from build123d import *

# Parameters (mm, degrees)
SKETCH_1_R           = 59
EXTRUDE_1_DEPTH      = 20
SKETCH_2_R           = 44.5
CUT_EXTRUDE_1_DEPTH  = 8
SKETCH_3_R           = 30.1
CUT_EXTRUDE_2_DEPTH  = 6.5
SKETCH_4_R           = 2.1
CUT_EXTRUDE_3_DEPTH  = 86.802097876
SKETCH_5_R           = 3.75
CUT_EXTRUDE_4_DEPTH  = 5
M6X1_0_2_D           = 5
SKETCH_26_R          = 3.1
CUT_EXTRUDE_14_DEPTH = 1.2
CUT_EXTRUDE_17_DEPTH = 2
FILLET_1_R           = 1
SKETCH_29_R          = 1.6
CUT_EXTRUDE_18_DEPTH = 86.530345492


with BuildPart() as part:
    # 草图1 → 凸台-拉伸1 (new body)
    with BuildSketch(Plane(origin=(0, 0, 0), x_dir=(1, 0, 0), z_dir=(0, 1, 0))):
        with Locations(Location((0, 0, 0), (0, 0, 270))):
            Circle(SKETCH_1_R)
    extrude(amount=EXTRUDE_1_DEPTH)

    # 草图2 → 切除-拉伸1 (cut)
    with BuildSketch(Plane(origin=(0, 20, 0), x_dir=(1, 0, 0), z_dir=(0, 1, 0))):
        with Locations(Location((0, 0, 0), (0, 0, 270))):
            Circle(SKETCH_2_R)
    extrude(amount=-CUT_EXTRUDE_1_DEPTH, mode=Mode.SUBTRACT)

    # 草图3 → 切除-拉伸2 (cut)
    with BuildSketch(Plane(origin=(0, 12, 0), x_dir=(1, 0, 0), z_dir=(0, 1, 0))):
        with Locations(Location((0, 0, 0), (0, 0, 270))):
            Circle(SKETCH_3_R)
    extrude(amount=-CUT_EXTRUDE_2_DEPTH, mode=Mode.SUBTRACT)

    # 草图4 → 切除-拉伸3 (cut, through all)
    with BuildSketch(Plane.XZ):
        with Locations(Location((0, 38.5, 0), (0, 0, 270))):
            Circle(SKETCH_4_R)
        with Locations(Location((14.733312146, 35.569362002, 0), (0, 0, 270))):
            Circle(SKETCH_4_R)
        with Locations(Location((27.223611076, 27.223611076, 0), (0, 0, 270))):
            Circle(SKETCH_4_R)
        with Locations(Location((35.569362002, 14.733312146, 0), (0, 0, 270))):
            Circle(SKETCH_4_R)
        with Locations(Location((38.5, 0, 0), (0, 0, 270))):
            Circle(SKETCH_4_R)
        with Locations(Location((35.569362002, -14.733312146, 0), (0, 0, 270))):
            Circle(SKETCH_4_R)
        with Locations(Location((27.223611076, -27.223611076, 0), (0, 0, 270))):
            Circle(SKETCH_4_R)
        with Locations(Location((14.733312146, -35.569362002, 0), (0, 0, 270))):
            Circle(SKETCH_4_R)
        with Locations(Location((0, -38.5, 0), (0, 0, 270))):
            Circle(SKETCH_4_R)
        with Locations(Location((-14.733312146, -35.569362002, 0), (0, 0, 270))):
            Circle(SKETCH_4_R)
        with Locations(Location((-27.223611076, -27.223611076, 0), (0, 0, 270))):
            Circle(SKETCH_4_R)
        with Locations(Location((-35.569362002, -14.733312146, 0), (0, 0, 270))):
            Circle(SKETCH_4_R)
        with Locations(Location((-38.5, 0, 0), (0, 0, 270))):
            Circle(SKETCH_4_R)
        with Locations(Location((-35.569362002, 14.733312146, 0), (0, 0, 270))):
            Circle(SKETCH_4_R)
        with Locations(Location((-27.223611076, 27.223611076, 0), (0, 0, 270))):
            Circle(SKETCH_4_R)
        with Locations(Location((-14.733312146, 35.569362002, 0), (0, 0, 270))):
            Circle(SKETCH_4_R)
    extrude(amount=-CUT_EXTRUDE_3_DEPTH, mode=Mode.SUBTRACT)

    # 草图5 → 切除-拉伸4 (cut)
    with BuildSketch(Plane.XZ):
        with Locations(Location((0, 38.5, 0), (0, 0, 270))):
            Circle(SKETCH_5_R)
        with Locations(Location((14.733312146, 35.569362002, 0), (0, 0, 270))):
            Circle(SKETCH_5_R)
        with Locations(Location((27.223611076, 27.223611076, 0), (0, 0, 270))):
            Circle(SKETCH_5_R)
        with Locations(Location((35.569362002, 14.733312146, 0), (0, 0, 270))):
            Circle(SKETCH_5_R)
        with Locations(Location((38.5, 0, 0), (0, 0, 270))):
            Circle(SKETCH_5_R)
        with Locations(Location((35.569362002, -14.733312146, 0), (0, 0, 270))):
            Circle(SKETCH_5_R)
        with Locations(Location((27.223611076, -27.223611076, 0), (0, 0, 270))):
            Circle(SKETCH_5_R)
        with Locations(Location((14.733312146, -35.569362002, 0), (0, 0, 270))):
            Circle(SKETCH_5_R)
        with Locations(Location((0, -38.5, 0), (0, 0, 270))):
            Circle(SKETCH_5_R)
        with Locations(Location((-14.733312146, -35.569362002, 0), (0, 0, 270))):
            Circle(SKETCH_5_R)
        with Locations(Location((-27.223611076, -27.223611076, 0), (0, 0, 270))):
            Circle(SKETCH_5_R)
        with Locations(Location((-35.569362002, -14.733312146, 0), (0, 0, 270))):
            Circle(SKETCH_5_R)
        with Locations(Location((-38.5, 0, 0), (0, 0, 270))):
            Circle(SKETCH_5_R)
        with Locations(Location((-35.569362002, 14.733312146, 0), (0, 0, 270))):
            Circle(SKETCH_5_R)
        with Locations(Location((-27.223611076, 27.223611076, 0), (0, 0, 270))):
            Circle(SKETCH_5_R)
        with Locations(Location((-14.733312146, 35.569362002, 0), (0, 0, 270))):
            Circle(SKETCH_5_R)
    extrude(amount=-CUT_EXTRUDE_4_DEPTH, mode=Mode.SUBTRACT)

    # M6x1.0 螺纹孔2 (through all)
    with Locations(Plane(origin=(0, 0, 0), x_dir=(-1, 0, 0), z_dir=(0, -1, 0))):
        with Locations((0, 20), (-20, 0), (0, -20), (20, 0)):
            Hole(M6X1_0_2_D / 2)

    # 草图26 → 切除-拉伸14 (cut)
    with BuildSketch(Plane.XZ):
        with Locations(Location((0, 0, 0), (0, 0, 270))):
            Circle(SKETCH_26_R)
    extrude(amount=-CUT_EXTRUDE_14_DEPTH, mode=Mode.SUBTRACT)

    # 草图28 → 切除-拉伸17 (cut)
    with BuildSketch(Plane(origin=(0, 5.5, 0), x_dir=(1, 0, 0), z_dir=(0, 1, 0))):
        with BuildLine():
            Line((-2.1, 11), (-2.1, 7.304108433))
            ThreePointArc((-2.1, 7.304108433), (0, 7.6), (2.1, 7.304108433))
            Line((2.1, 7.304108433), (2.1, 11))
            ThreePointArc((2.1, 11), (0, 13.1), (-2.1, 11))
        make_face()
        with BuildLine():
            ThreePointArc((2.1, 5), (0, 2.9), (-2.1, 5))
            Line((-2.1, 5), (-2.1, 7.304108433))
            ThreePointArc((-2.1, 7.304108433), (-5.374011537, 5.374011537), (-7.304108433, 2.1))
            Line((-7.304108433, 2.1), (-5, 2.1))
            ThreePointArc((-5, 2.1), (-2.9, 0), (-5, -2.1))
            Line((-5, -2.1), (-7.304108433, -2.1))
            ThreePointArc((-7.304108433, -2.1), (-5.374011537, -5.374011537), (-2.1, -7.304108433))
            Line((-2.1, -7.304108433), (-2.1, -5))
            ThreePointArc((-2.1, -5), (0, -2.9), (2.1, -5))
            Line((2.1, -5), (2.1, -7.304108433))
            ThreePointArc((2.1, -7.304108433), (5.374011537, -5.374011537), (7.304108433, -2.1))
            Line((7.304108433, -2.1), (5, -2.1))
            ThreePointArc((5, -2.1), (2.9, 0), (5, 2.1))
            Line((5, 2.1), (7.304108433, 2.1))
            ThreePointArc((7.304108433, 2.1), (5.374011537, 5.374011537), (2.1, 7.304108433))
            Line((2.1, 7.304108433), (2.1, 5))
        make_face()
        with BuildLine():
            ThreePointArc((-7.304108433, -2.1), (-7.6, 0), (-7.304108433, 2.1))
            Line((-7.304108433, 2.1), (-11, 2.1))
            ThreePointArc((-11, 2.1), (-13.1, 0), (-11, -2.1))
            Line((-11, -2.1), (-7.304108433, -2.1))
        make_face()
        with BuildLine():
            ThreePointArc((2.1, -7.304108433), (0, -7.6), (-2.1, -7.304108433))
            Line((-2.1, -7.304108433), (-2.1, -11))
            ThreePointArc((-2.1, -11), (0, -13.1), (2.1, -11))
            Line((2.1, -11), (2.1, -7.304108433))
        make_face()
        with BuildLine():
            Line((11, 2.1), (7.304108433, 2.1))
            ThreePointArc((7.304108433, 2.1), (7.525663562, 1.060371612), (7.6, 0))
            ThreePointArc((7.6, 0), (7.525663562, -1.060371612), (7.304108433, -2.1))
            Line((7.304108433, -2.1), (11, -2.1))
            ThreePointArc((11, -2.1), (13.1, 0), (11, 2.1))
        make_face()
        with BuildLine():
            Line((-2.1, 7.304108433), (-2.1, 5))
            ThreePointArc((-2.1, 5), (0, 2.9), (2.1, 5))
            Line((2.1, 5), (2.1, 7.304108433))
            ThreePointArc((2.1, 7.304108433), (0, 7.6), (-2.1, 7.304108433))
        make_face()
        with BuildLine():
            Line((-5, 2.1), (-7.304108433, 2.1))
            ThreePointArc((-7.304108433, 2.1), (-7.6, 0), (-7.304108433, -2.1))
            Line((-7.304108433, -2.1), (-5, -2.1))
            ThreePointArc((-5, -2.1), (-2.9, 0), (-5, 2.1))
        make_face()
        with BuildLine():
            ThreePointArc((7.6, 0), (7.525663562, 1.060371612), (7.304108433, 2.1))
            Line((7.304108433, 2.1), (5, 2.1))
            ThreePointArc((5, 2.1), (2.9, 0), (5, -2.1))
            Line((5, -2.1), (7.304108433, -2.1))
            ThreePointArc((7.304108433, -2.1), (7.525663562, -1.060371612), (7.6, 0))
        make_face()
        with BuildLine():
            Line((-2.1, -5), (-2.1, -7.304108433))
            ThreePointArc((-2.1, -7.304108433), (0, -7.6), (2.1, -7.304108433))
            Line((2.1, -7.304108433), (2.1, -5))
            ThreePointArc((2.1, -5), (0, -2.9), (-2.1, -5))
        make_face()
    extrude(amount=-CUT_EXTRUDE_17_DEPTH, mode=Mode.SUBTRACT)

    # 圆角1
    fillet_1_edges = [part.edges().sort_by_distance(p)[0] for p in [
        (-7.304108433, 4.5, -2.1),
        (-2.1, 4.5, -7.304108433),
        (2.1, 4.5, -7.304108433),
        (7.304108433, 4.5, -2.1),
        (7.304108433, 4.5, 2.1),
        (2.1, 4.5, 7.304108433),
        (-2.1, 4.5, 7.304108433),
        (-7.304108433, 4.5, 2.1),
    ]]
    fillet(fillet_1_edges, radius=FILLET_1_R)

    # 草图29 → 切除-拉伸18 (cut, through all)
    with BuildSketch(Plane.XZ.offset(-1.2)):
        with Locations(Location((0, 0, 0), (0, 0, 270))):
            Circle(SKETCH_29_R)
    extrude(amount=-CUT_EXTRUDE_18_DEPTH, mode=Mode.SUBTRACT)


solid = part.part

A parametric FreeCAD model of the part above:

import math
import FreeCAD as App
import Part
import Sketcher

V = App.Vector


def edges_at(feature, points):
    """Names of the edges that pass closest to the given points."""
    edges = feature.Shape.Edges
    near = lambda p: min(range(len(edges)), key=lambda i: edges[i].distToShape(Part.Vertex(*p))[0])
    return sorted({f"Edge{near(p) + 1}" for p in points})

doc = App.newDocument("Part")
params = doc.addObject("Spreadsheet::Sheet", "Params")
for row, (alias, value) in enumerate([
    ("sketch1_diameter", "118 mm"),
    ("pad1_length", "20 mm"),
    ("sketch2_diameter", "89 mm"),
    ("pocket1_length", "8 mm"),
    ("sketch3_diameter", "60.2 mm"),
    ("pocket2_length", "6.5 mm"),
    ("sketch4_diameter", "4.2 mm"),
    ("sketch5_diameter", "7.5 mm"),
    ("pocket4_length", "5 mm"),
    ("sketch6_diameter", "5 mm"),
    ("hole_diameter", "5 mm"),
    ("sketch7_diameter", "6.2 mm"),
    ("pocket5_length", "1.2 mm"),
    ("sketch8_radius", "7.6 mm"),
    ("sketch8_radius2", "2.1 mm"),
    ("pocket6_length", "2 mm"),
    ("fillet_radius", "1 mm"),
    ("sketch9_diameter", "3.2 mm"),
], start=1):
    params.set(f"A{row}", alias)
    params.set(f"B{row}", "=" + value)
    params.setAlias(f"B{row}", alias)

body = doc.addObject("PartDesign::Body", "Body")

sketch1 = body.newObject("Sketcher::SketchObject", "Sketch")
sketch1.AttachmentSupport = (doc.getObject("XZ_Plane"), [""])
sketch1.MapMode = "FlatFace"
sketch1.addGeometry(Part.Circle(V(0, 0, 0), V(0, 0, 1), 59), False)
sketch1.addConstraint(Sketcher.Constraint("Coincident", 0, 3, -1, 1))
sketch1.addConstraint(Sketcher.Constraint("Diameter", 0, 118.0))
sketch1.setExpression("Constraints[1]", "Params.sketch1_diameter")
pad1 = body.newObject("PartDesign::Pad", "Pad")
pad1.Profile = sketch1
pad1.setExpression("Length", "Params.pad1_length")
pad1.Reversed = True

sketch2 = body.newObject("Sketcher::SketchObject", "Sketch001")
sketch2.AttachmentSupport = (doc.getObject("XZ_Plane"), [""])
sketch2.MapMode = "FlatFace"
sketch2.AttachmentOffset = App.Placement(V(0, 0, -20), App.Rotation())
sketch2.addGeometry(Part.Circle(V(0, 0, 0), V(0, 0, 1), 44.5), False)
sketch2.addConstraint(Sketcher.Constraint("Coincident", 0, 3, -1, 1))
sketch2.addConstraint(Sketcher.Constraint("Diameter", 0, 89.0))
sketch2.setExpression("Constraints[1]", "Params.sketch2_diameter")
pocket1 = body.newObject("PartDesign::Pocket", "Pocket")
pocket1.Profile = sketch2
pocket1.setExpression("Length", "Params.pocket1_length")
pocket1.Reversed = True

sketch3 = body.newObject("Sketcher::SketchObject", "Sketch002")
sketch3.AttachmentSupport = (doc.getObject("XZ_Plane"), [""])
sketch3.MapMode = "FlatFace"
sketch3.AttachmentOffset = App.Placement(V(0, 0, -12), App.Rotation())
sketch3.addGeometry(Part.Circle(V(0, 0, 0), V(0, 0, 1), 30.1), False)
sketch3.addConstraint(Sketcher.Constraint("Coincident", 0, 3, -1, 1))
sketch3.addConstraint(Sketcher.Constraint("Diameter", 0, 60.2))
sketch3.setExpression("Constraints[1]", "Params.sketch3_diameter")
pocket2 = body.newObject("PartDesign::Pocket", "Pocket001")
pocket2.Profile = sketch3
pocket2.setExpression("Length", "Params.pocket2_length")
pocket2.Reversed = True

sketch4 = body.newObject("Sketcher::SketchObject", "Sketch003")
sketch4.AttachmentSupport = (doc.getObject("XZ_Plane"), [""])
sketch4.MapMode = "FlatFace"
sketch4.addGeometry(Part.Circle(V(0, 38.5, 0), V(0, 0, 1), 2.1), False)
sketch4.addGeometry(Part.Circle(V(14.733312, 35.569362, 0), V(0, 0, 1), 2.1), False)
sketch4.addGeometry(Part.Circle(V(27.223611, 27.223611, 0), V(0, 0, 1), 2.1), False)
sketch4.addGeometry(Part.Circle(V(35.569362, 14.733312, 0), V(0, 0, 1), 2.1), False)
sketch4.addGeometry(Part.Circle(V(38.5, 0, 0), V(0, 0, 1), 2.1), False)
sketch4.addGeometry(Part.Circle(V(35.569362, -14.733312, 0), V(0, 0, 1), 2.1), False)
sketch4.addGeometry(Part.Circle(V(27.223611, -27.223611, 0), V(0, 0, 1), 2.1), False)
sketch4.addGeometry(Part.Circle(V(14.733312, -35.569362, 0), V(0, 0, 1), 2.1), False)
sketch4.addGeometry(Part.Circle(V(0, -38.5, 0), V(0, 0, 1), 2.1), False)
sketch4.addGeometry(Part.Circle(V(-14.733312, -35.569362, 0), V(0, 0, 1), 2.1), False)
sketch4.addGeometry(Part.Circle(V(-27.223611, -27.223611, 0), V(0, 0, 1), 2.1), False)
sketch4.addGeometry(Part.Circle(V(-35.569362, -14.733312, 0), V(0, 0, 1), 2.1), False)
sketch4.addGeometry(Part.Circle(V(-38.5, 0, 0), V(0, 0, 1), 2.1), False)
sketch4.addGeometry(Part.Circle(V(-35.569362, 14.733312, 0), V(0, 0, 1), 2.1), False)
sketch4.addGeometry(Part.Circle(V(-27.223611, 27.223611, 0), V(0, 0, 1), 2.1), False)
sketch4.addGeometry(Part.Circle(V(-14.733312, 35.569362, 0), V(0, 0, 1), 2.1), False)
sketch4.addConstraint(Sketcher.Constraint("Equal", 0, 1))
sketch4.addConstraint(Sketcher.Constraint("Equal", 1, 2))
sketch4.addConstraint(Sketcher.Constraint("Equal", 2, 3))
sketch4.addConstraint(Sketcher.Constraint("Equal", 3, 4))
sketch4.addConstraint(Sketcher.Constraint("Equal", 4, 5))
sketch4.addConstraint(Sketcher.Constraint("Equal", 5, 6))
sketch4.addConstraint(Sketcher.Constraint("Equal", 6, 7))
sketch4.addConstraint(Sketcher.Constraint("Equal", 7, 8))
sketch4.addConstraint(Sketcher.Constraint("Equal", 8, 9))
sketch4.addConstraint(Sketcher.Constraint("Equal", 9, 10))
sketch4.addConstraint(Sketcher.Constraint("Equal", 10, 11))
sketch4.addConstraint(Sketcher.Constraint("Equal", 11, 12))
sketch4.addConstraint(Sketcher.Constraint("Equal", 12, 13))
sketch4.addConstraint(Sketcher.Constraint("Equal", 13, 14))
sketch4.addConstraint(Sketcher.Constraint("Equal", 14, 15))
sketch4.addConstraint(Sketcher.Constraint("Symmetric", 0, 3, 8, 3, -1, 1))
sketch4.addConstraint(Sketcher.Constraint("Symmetric", 1, 3, 9, 3, -1, 1))
sketch4.addConstraint(Sketcher.Constraint("Symmetric", 2, 3, 10, 3, -1, 1))
sketch4.addConstraint(Sketcher.Constraint("Symmetric", 3, 3, 11, 3, -1, 1))
sketch4.addConstraint(Sketcher.Constraint("Symmetric", 4, 3, 12, 3, -1, 1))
sketch4.addConstraint(Sketcher.Constraint("Symmetric", 5, 3, 13, 3, -1, 1))
sketch4.addConstraint(Sketcher.Constraint("Symmetric", 6, 3, 14, 3, -1, 1))
sketch4.addConstraint(Sketcher.Constraint("Symmetric", 7, 3, 15, 3, -1, 1))
sketch4.addConstraint(Sketcher.Constraint("Symmetric", 7, 3, 9, 3, -2))
sketch4.addConstraint(Sketcher.Constraint("Symmetric", 6, 3, 10, 3, -2))
sketch4.addConstraint(Sketcher.Constraint("Symmetric", 5, 3, 11, 3, -2))
sketch4.addConstraint(Sketcher.Constraint("PointOnObject", 0, 3, -2))
sketch4.addConstraint(Sketcher.Constraint("PointOnObject", 4, 3, -1))
sketch4.addConstraint(Sketcher.Constraint("Diameter", 0, 4.2))
sketch4.addConstraint(Sketcher.Constraint("DistanceY", -1, 1, 0, 3, 38.5))
sketch4.addConstraint(Sketcher.Constraint("DistanceX", -1, 1, 4, 3, 38.5))
sketch4.addConstraint(Sketcher.Constraint("DistanceX", 1, 3, 2, 3, 12.490299))
sketch4.addConstraint(Sketcher.Constraint("DistanceY", 3, 3, 2, 3, 12.490299))
sketch4.addConstraint(Sketcher.Constraint("DistanceX", -1, 1, 2, 3, 27.223611))
sketch4.addConstraint(Sketcher.Constraint("DistanceY", -1, 1, 2, 3, 27.223611))
sketch4.addConstraint(Sketcher.Constraint("DistanceY", 2, 3, 1, 3, 8.345751))
sketch4.addConstraint(Sketcher.Constraint("DistanceX", 2, 3, 3, 3, 8.345751))
sketch4.setExpression("Constraints[28]", "Params.sketch4_diameter")
pocket3 = body.newObject("PartDesign::Pocket", "Pocket002")
pocket3.Profile = sketch4
pocket3.Type = "ThroughAll"

sketch5 = body.newObject("Sketcher::SketchObject", "Sketch004")
sketch5.AttachmentSupport = (doc.getObject("XZ_Plane"), [""])
sketch5.MapMode = "FlatFace"
sketch5.addGeometry(Part.Circle(V(0, 38.5, 0), V(0, 0, 1), 3.75), False)
sketch5.addGeometry(Part.Circle(V(14.733312, 35.569362, 0), V(0, 0, 1), 3.75), False)
sketch5.addGeometry(Part.Circle(V(27.223611, 27.223611, 0), V(0, 0, 1), 3.75), False)
sketch5.addGeometry(Part.Circle(V(35.569362, 14.733312, 0), V(0, 0, 1), 3.75), False)
sketch5.addGeometry(Part.Circle(V(38.5, 0, 0), V(0, 0, 1), 3.75), False)
sketch5.addGeometry(Part.Circle(V(35.569362, -14.733312, 0), V(0, 0, 1), 3.75), False)
sketch5.addGeometry(Part.Circle(V(27.223611, -27.223611, 0), V(0, 0, 1), 3.75), False)
sketch5.addGeometry(Part.Circle(V(14.733312, -35.569362, 0), V(0, 0, 1), 3.75), False)
sketch5.addGeometry(Part.Circle(V(0, -38.5, 0), V(0, 0, 1), 3.75), False)
sketch5.addGeometry(Part.Circle(V(-14.733312, -35.569362, 0), V(0, 0, 1), 3.75), False)
sketch5.addGeometry(Part.Circle(V(-27.223611, -27.223611, 0), V(0, 0, 1), 3.75), False)
sketch5.addGeometry(Part.Circle(V(-35.569362, -14.733312, 0), V(0, 0, 1), 3.75), False)
sketch5.addGeometry(Part.Circle(V(-38.5, 0, 0), V(0, 0, 1), 3.75), False)
sketch5.addGeometry(Part.Circle(V(-35.569362, 14.733312, 0), V(0, 0, 1), 3.75), False)
sketch5.addGeometry(Part.Circle(V(-27.223611, 27.223611, 0), V(0, 0, 1), 3.75), False)
sketch5.addGeometry(Part.Circle(V(-14.733312, 35.569362, 0), V(0, 0, 1), 3.75), False)
sketch5.addConstraint(Sketcher.Constraint("Equal", 0, 1))
sketch5.addConstraint(Sketcher.Constraint("Equal", 1, 2))
sketch5.addConstraint(Sketcher.Constraint("Equal", 2, 3))
sketch5.addConstraint(Sketcher.Constraint("Equal", 3, 4))
sketch5.addConstraint(Sketcher.Constraint("Equal", 4, 5))
sketch5.addConstraint(Sketcher.Constraint("Equal", 5, 6))
sketch5.addConstraint(Sketcher.Constraint("Equal", 6, 7))
sketch5.addConstraint(Sketcher.Constraint("Equal", 7, 8))
sketch5.addConstraint(Sketcher.Constraint("Equal", 8, 9))
sketch5.addConstraint(Sketcher.Constraint("Equal", 9, 10))
sketch5.addConstraint(Sketcher.Constraint("Equal", 10, 11))
sketch5.addConstraint(Sketcher.Constraint("Equal", 11, 12))
sketch5.addConstraint(Sketcher.Constraint("Equal", 12, 13))
sketch5.addConstraint(Sketcher.Constraint("Equal", 13, 14))
sketch5.addConstraint(Sketcher.Constraint("Equal", 14, 15))
sketch5.addConstraint(Sketcher.Constraint("Symmetric", 0, 3, 8, 3, -1, 1))
sketch5.addConstraint(Sketcher.Constraint("Symmetric", 1, 3, 9, 3, -1, 1))
sketch5.addConstraint(Sketcher.Constraint("Symmetric", 2, 3, 10, 3, -1, 1))
sketch5.addConstraint(Sketcher.Constraint("Symmetric", 3, 3, 11, 3, -1, 1))
sketch5.addConstraint(Sketcher.Constraint("Symmetric", 4, 3, 12, 3, -1, 1))
sketch5.addConstraint(Sketcher.Constraint("Symmetric", 5, 3, 13, 3, -1, 1))
sketch5.addConstraint(Sketcher.Constraint("Symmetric", 6, 3, 14, 3, -1, 1))
sketch5.addConstraint(Sketcher.Constraint("Symmetric", 7, 3, 15, 3, -1, 1))
sketch5.addConstraint(Sketcher.Constraint("Symmetric", 7, 3, 9, 3, -2))
sketch5.addConstraint(Sketcher.Constraint("Symmetric", 6, 3, 10, 3, -2))
sketch5.addConstraint(Sketcher.Constraint("Symmetric", 5, 3, 11, 3, -2))
sketch5.addConstraint(Sketcher.Constraint("PointOnObject", 0, 3, -2))
sketch5.addConstraint(Sketcher.Constraint("PointOnObject", 4, 3, -1))
sketch5.addConstraint(Sketcher.Constraint("Diameter", 0, 7.5))
sketch5.addConstraint(Sketcher.Constraint("DistanceY", -1, 1, 0, 3, 38.5))
sketch5.addConstraint(Sketcher.Constraint("DistanceX", -1, 1, 4, 3, 38.5))
sketch5.addConstraint(Sketcher.Constraint("DistanceX", 1, 3, 2, 3, 12.490299))
sketch5.addConstraint(Sketcher.Constraint("DistanceY", 3, 3, 2, 3, 12.490299))
sketch5.addConstraint(Sketcher.Constraint("DistanceX", -1, 1, 2, 3, 27.223611))
sketch5.addConstraint(Sketcher.Constraint("DistanceY", -1, 1, 2, 3, 27.223611))
sketch5.addConstraint(Sketcher.Constraint("DistanceY", 2, 3, 1, 3, 8.345751))
sketch5.addConstraint(Sketcher.Constraint("DistanceX", 2, 3, 3, 3, 8.345751))
sketch5.setExpression("Constraints[28]", "Params.sketch5_diameter")
pocket4 = body.newObject("PartDesign::Pocket", "Pocket003")
pocket4.Profile = sketch5
pocket4.setExpression("Length", "Params.pocket4_length")

sketch6 = body.newObject("Sketcher::SketchObject", "Sketch005")
sketch6.AttachmentSupport = (doc.getObject("XZ_Plane"), [""])
sketch6.MapMode = "FlatFace"
sketch6.addGeometry(Part.Circle(V(0, -20, 0), V(0, 0, 1), 2.5), False)
sketch6.addGeometry(Part.Circle(V(20, 0, 0), V(0, 0, 1), 2.5), False)
sketch6.addGeometry(Part.Circle(V(0, 20, 0), V(0, 0, 1), 2.5), False)
sketch6.addGeometry(Part.Circle(V(-20, 0, 0), V(0, 0, 1), 2.5), False)
sketch6.addConstraint(Sketcher.Constraint("Equal", 0, 1))
sketch6.addConstraint(Sketcher.Constraint("Equal", 1, 2))
sketch6.addConstraint(Sketcher.Constraint("Equal", 2, 3))
sketch6.addConstraint(Sketcher.Constraint("Symmetric", 0, 3, 2, 3, -1, 1))
sketch6.addConstraint(Sketcher.Constraint("Symmetric", 1, 3, 3, 3, -1, 1))
sketch6.addConstraint(Sketcher.Constraint("PointOnObject", 0, 3, -2))
sketch6.addConstraint(Sketcher.Constraint("PointOnObject", 1, 3, -1))
sketch6.addConstraint(Sketcher.Constraint("Diameter", 0, 5.0))
sketch6.addConstraint(Sketcher.Constraint("DistanceY", 0, 3, -1, 1, 20.0))
sketch6.addConstraint(Sketcher.Constraint("DistanceX", -1, 1, 1, 3, 20.0))
sketch6.setExpression("Constraints[7]", "Params.sketch6_diameter")
doc.recompute()
hole = body.newObject("PartDesign::Hole", "Hole")
hole.Profile = sketch6
hole.ThreadType = "None"
hole.setExpression("Diameter", "Params.hole_diameter")
hole.DepthType = "ThroughAll"

sketch7 = body.newObject("Sketcher::SketchObject", "Sketch006")
sketch7.AttachmentSupport = (doc.getObject("XZ_Plane"), [""])
sketch7.MapMode = "FlatFace"
sketch7.addGeometry(Part.Circle(V(0, 0, 0), V(0, 0, 1), 3.1), False)
sketch7.addConstraint(Sketcher.Constraint("Coincident", 0, 3, -1, 1))
sketch7.addConstraint(Sketcher.Constraint("Diameter", 0, 6.2))
sketch7.setExpression("Constraints[1]", "Params.sketch7_diameter")
pocket5 = body.newObject("PartDesign::Pocket", "Pocket004")
pocket5.Profile = sketch7
pocket5.setExpression("Length", "Params.pocket5_length")

sketch8 = body.newObject("Sketcher::SketchObject", "Sketch007")
sketch8.AttachmentSupport = (doc.getObject("XZ_Plane"), [""])
sketch8.MapMode = "FlatFace"
sketch8.AttachmentOffset = App.Placement(V(0, 0, -5.5), App.Rotation())
sketch8.addGeometry(Part.LineSegment(V(-2.1, -11, 0), V(-2.1, -7.304108, 0)), False)
sketch8.addGeometry(Part.ArcOfCircle(Part.Circle(V(0, 0, 0), V(0, 0, 1), 7.6), math.radians(-163.959558), math.radians(-106.040442)), False)
sketch8.addGeometry(Part.LineSegment(V(-7.304108, -2.1, 0), V(-11, -2.1, 0)), False)
sketch8.addGeometry(Part.ArcOfCircle(Part.Circle(V(-11, 0, 0), V(0, 0, 1), 2.1), math.radians(90), math.radians(270)), False)
sketch8.addGeometry(Part.LineSegment(V(-11, 2.1, 0), V(-7.304108, 2.1, 0)), False)
sketch8.addGeometry(Part.ArcOfCircle(Part.Circle(V(0, 0, 0), V(0, 0, 1), 7.6), math.radians(106.040442), math.radians(163.959558)), False)
sketch8.addGeometry(Part.LineSegment(V(-2.1, 7.304108, 0), V(-2.1, 11, 0)), False)
sketch8.addGeometry(Part.ArcOfCircle(Part.Circle(V(0, 11, 0), V(0, 0, 1), 2.1), math.radians(0), math.radians(180)), False)
sketch8.addGeometry(Part.LineSegment(V(2.1, 11, 0), V(2.1, 7.304108, 0)), False)
sketch8.addGeometry(Part.ArcOfCircle(Part.Circle(V(0, 0, 0), V(0, 0, 1), 7.6), math.radians(16.040442), math.radians(73.959558)), False)
sketch8.addGeometry(Part.LineSegment(V(7.304108, 2.1, 0), V(11, 2.1, 0)), False)
sketch8.addGeometry(Part.ArcOfCircle(Part.Circle(V(11, 0, 0), V(0, 0, 1), 2.1), math.radians(-90), math.radians(90)), False)
sketch8.addGeometry(Part.LineSegment(V(11, -2.1, 0), V(7.304108, -2.1, 0)), False)
sketch8.addGeometry(Part.ArcOfCircle(Part.Circle(V(0, 0, 0), V(0, 0, 1), 7.6), math.radians(-73.959558), math.radians(-16.040442)), False)
sketch8.addGeometry(Part.LineSegment(V(2.1, -7.304108, 0), V(2.1, -11, 0)), False)
sketch8.addGeometry(Part.ArcOfCircle(Part.Circle(V(0, -11, 0), V(0, 0, 1), 2.1), math.radians(180), math.radians(360)), False)
sketch8.addConstraint(Sketcher.Constraint("Coincident", 0, 2, 1, 2))
sketch8.addConstraint(Sketcher.Constraint("Coincident", 1, 1, 2, 1))
sketch8.addConstraint(Sketcher.Constraint("Tangent", 2, 2, 3, 2))
sketch8.addConstraint(Sketcher.Constraint("Tangent", 3, 1, 4, 1))
sketch8.addConstraint(Sketcher.Constraint("Coincident", 4, 2, 5, 2))
sketch8.addConstraint(Sketcher.Constraint("Coincident", 5, 1, 6, 1))
sketch8.addConstraint(Sketcher.Constraint("Tangent", 6, 2, 7, 2))
sketch8.addConstraint(Sketcher.Constraint("Tangent", 7, 1, 8, 1))
sketch8.addConstraint(Sketcher.Constraint("Coincident", 8, 2, 9, 2))
sketch8.addConstraint(Sketcher.Constraint("Coincident", 9, 1, 10, 1))
sketch8.addConstraint(Sketcher.Constraint("Tangent", 10, 2, 11, 2))
sketch8.addConstraint(Sketcher.Constraint("Tangent", 11, 1, 12, 1))
sketch8.addConstraint(Sketcher.Constraint("Coincident", 12, 2, 13, 2))
sketch8.addConstraint(Sketcher.Constraint("Coincident", 13, 1, 14, 1))
sketch8.addConstraint(Sketcher.Constraint("Tangent", 14, 2, 15, 2))
sketch8.addConstraint(Sketcher.Constraint("Tangent", 15, 1, 0, 1))
sketch8.addConstraint(Sketcher.Constraint("Vertical", 0))
sketch8.addConstraint(Sketcher.Constraint("Horizontal", 2))
sketch8.addConstraint(Sketcher.Constraint("Horizontal", 4))
sketch8.addConstraint(Sketcher.Constraint("Vertical", 6))
sketch8.addConstraint(Sketcher.Constraint("Vertical", 8))
sketch8.addConstraint(Sketcher.Constraint("Horizontal", 10))
sketch8.addConstraint(Sketcher.Constraint("Horizontal", 12))
sketch8.addConstraint(Sketcher.Constraint("Vertical", 14))
sketch8.addConstraint(Sketcher.Constraint("Coincident", 1, 3, -1, 1))
sketch8.addConstraint(Sketcher.Constraint("Coincident", 5, 3, -1, 1))
sketch8.addConstraint(Sketcher.Constraint("Coincident", 9, 3, -1, 1))
sketch8.addConstraint(Sketcher.Constraint("Coincident", 13, 3, -1, 1))
sketch8.addConstraint(Sketcher.Constraint("Equal", 1, 5))
sketch8.addConstraint(Sketcher.Constraint("Equal", 3, 7))
sketch8.addConstraint(Sketcher.Constraint("Equal", 5, 9))
sketch8.addConstraint(Sketcher.Constraint("Equal", 7, 11))
sketch8.addConstraint(Sketcher.Constraint("Equal", 9, 13))
sketch8.addConstraint(Sketcher.Constraint("Equal", 11, 15))
sketch8.addConstraint(Sketcher.Constraint("Symmetric", 3, 3, 11, 3, -1, 1))
sketch8.addConstraint(Sketcher.Constraint("Symmetric", 7, 3, 15, 3, -1, 1))
sketch8.addConstraint(Sketcher.Constraint("PointOnObject", 3, 3, -1))
sketch8.addConstraint(Sketcher.Constraint("PointOnObject", 7, 3, -2))
sketch8.addConstraint(Sketcher.Constraint("Equal", 12, 0))
sketch8.addConstraint(Sketcher.Constraint("Radius", 1, 7.6))
sketch8.addConstraint(Sketcher.Constraint("Radius", 3, 2.1))
sketch8.addConstraint(Sketcher.Constraint("DistanceX", 3, 3, -1, 1, 11.0))
sketch8.setExpression("Constraints[39]", "Params.sketch8_radius")
sketch8.setExpression("Constraints[40]", "Params.sketch8_radius2")
pocket6 = body.newObject("PartDesign::Pocket", "Pocket005")
pocket6.Profile = sketch8
pocket6.setExpression("Length", "Params.pocket6_length")
pocket6.Reversed = True
doc.recompute()

fillet = body.newObject("PartDesign::Fillet", "Fillet")
fillet.Base = (pocket6, edges_at(pocket6, [
    (-7.304, 4.5, -2.1),
    (-2.1, 4.5, -7.304),
    (2.1, 4.5, -7.304),
    (7.304, 4.5, -2.1),
    (7.304, 4.5, 2.1),
    (2.1, 4.5, 7.304),
    (-2.1, 4.5, 7.304),
    (-7.304, 4.5, 2.1),
]))
fillet.setExpression("Radius", "Params.fillet_radius")

sketch9 = body.newObject("Sketcher::SketchObject", "Sketch008")
sketch9.AttachmentSupport = (doc.getObject("XZ_Plane"), [""])
sketch9.MapMode = "FlatFace"
sketch9.AttachmentOffset = App.Placement(V(0, 0, -1.2), App.Rotation())
sketch9.addGeometry(Part.Circle(V(0, 0, 0), V(0, 0, 1), 1.6), False)
sketch9.addConstraint(Sketcher.Constraint("Coincident", 0, 3, -1, 1))
sketch9.addConstraint(Sketcher.Constraint("Diameter", 0, 3.2))
sketch9.setExpression("Constraints[1]", "Params.sketch9_diameter")
pocket7 = body.newObject("PartDesign::Pocket", "Pocket006")
pocket7.Profile = sketch9
pocket7.Type = "ThroughAll"

doc.recompute()
